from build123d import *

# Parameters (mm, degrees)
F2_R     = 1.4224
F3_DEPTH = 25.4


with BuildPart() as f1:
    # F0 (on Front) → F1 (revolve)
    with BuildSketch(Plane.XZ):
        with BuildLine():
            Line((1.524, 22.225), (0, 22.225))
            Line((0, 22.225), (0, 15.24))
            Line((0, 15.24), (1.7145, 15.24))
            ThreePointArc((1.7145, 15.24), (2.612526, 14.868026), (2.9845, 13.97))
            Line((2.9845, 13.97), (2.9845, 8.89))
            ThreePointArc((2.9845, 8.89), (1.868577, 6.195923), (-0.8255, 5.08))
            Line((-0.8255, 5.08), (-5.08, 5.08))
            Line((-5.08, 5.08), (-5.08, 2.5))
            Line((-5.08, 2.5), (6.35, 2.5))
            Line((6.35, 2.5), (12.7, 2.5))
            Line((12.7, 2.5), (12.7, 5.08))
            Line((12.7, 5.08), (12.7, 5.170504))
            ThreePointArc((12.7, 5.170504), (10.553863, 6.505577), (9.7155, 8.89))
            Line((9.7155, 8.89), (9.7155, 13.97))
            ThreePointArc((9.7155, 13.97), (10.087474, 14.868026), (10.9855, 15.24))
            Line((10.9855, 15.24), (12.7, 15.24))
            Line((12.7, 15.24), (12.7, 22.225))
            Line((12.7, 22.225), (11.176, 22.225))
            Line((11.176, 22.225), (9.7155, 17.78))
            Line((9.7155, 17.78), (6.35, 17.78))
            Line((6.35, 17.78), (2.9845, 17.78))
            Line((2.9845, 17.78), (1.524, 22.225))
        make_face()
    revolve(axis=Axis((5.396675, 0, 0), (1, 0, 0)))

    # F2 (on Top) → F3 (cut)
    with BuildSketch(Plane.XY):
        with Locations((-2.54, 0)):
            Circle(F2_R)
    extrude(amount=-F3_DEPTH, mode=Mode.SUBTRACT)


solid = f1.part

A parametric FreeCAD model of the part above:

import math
import FreeCAD as App
import Part
import Sketcher

V = App.Vector
Q = App.Units.Quantity

doc = App.newDocument("Part")
body = doc.addObject("PartDesign::Body", "Body")

sketch1 = doc.addObject("Sketcher::SketchObject", "Sketch")
body.addObject(sketch1)
sketch1.AttachmentSupport = (doc.XZ_Plane, [""])
sketch1.MapMode = "FlatFace"
sketch1.addGeometry([
    Part.LineSegment(V(1.524, 22.225, 0), V(0, 22.225, 0)),
    Part.LineSegment(V(0, 22.225, 0), V(0, 15.24, 0)),
    Part.LineSegment(V(0, 15.24, 0), V(1.7145, 15.24, 0)),
    Part.ArcOfCircle(Part.Circle(V(1.714501, 13.970001, 0), V(0, 0, 1), 1.269999), math.radians(-0.00006), math.radians(90.00006)),
    Part.LineSegment(V(2.9845, 13.97, 0), V(2.9845, 8.89, 0)),
    Part.ArcOfCircle(Part.Circle(V(-0.825499, 8.889999, 0), V(0, 0, 1), 3.809999), math.radians(-90.000008), math.radians(0.000008)),
    Part.LineSegment(V(-0.8255, 5.08, 0), V(-5.08, 5.08, 0)),
    Part.LineSegment(V(-5.08, 5.08, 0), V(-5.08, 2.5, 0)),
    Part.LineSegment(V(-5.08, 2.5, 0), V(12.7, 2.5, 0)),
    Part.LineSegment(V(12.7, 2.5, 0), V(12.7, 5.170504, 0)),
    Part.ArcOfCircle(Part.Circle(V(13.5255, 8.89, 0), V(0, 0, 1), 3.81), math.radians(-179.999996), math.radians(-102.513331)),
    Part.LineSegment(V(9.7155, 8.89, 0), V(9.7155, 13.97, 0)),
    Part.ArcOfCircle(Part.Circle(V(10.985499, 13.970001, 0), V(0, 0, 1), 1.269999), math.radians(89.99994), math.radians(180.00006)),
    Part.LineSegment(V(10.9855, 15.24, 0), V(12.7, 15.24, 0)),
    Part.LineSegment(V(12.7, 15.24, 0), V(12.7, 22.225, 0)),
    Part.LineSegment(V(12.7, 22.225, 0), V(11.176, 22.225, 0)),
    Part.LineSegment(V(11.176, 22.225, 0), V(9.7155, 17.78, 0)),
    Part.LineSegment(V(9.7155, 17.78, 0), V(2.9845, 17.78, 0)),
    Part.LineSegment(V(2.9845, 17.78, 0), V(1.524, 22.225, 0)),
], False)
sketch1.addConstraint([
    Sketcher.Constraint("Coincident", 0, 2, 1, 1),
    Sketcher.Constraint("Coincident", 1, 2, 2, 1),
    Sketcher.Constraint("Tangent", 2, 2, 3, 2),
    Sketcher.Constraint("Tangent", 3, 1, 4, 1),
    Sketcher.Constraint("Tangent", 4, 2, 5, 2),
    Sketcher.Constraint("Tangent", 5, 1, 6, 1),
    Sketcher.Constraint("Coincident", 6, 2, 7, 1),
    Sketcher.Constraint("Coincident", 7, 2, 8, 1),
    Sketcher.Constraint("Coincident", 8, 2, 9, 1),
    Sketcher.Constraint("Coincident", 9, 2, 10, 2),
    Sketcher.Constraint("Tangent", 10, 1, 11, 1),
    Sketcher.Constraint("Tangent", 11, 2, 12, 2),
    Sketcher.Constraint("Tangent", 12, 1, 13, 1),
    Sketcher.Constraint("Coincident", 13, 2, 14, 1),
    Sketcher.Constraint("Coincident", 14, 2, 15, 1),
    Sketcher.Constraint("Coincident", 15, 2, 16, 1),
    Sketcher.Constraint("Coincident", 16, 2, 17, 1),
    Sketcher.Constraint("Coincident", 17, 2, 18, 1),
    Sketcher.Constraint("Coincident", 18, 2, 0, 1),
    Sketcher.Constraint("Horizontal", 0),
    Sketcher.Constraint("Vertical", 1),
    Sketcher.Constraint("Horizontal", 2),
    Sketcher.Constraint("Vertical", 4),
    Sketcher.Constraint("Horizontal", 6),
    Sketcher.Constraint("Vertical", 7),
    Sketcher.Constraint("Horizontal", 8),
    Sketcher.Constraint("Vertical", 9),
    Sketcher.Constraint("Vertical", 11),
    Sketcher.Constraint("Horizontal", 13),
    Sketcher.Constraint("Vertical", 14),
    Sketcher.Constraint("Horizontal", 15),
    Sketcher.Constraint("Horizontal", 17),
    Sketcher.Constraint("Equal", 5, 10),
    Sketcher.Constraint("Equal", 3, 12),
    Sketcher.Constraint("PointOnObject", 0, 2, -2),
    Sketcher.Constraint("Horizontal", 5, 3, 10, 3),
    Sketcher.Constraint("Horizontal", 3, 3, 12, 3),
    Sketcher.Constraint("Horizontal", 0, 2, 14, 2),
    Sketcher.Constraint("Vertical", 9, 2, 13, 2),
    Sketcher.Constraint("Vertical", 11, 2, 16, 2),
    Sketcher.Constraint("Vertical", 4, 2, 17, 2),
    Sketcher.Constraint("Equal", 2, 13),
    Sketcher.Constraint("Equal", 0, 15),
    Sketcher.Constraint("Radius", 3, Q("0.0499999 in")),
    Sketcher.Constraint("Radius", 5, Q("0.15 in")),
    Sketcher.Constraint("DistanceX", 8, 1, 8, 2, Q("0.7 in")),
    Sketcher.Constraint("DistanceY", 4, 2, 4, 1, Q("0.2 in")),
    Sketcher.Constraint("DistanceX", 0, 2, 0, 1, Q("0.06 in")),
    Sketcher.Constraint("DistanceY", -1, 1, 1, 2, Q("0.6 in")),
    Sketcher.Constraint("DistanceX", 6, 2, -1, 1, Q("0.2 in")),
    Sketcher.Constraint("DistanceY", -1, 1, 16, 2, Q("0.7 in")),
    Sketcher.Constraint("DistanceX", 17, 2, 17, 1, Q("0.265 in")),
    Sketcher.Constraint("DistanceY", 1, 2, 1, 1, Q("0.275 in")),
    Sketcher.Constraint("DistanceY", 7, 2, 7, 1, 2.58),
])
revolution = doc.addObject("PartDesign::Revolution", "Revolution")
body.addObject(revolution)
revolution.Profile = sketch1
revolution.ReferenceAxis = (sketch1, ["H_Axis"])
revolution.Angle = 360

sketch2 = doc.addObject("Sketcher::SketchObject", "Sketch001")
body.addObject(sketch2)
sketch2.AttachmentSupport = (doc.XY_Plane, [""])
sketch2.MapMode = "FlatFace"
sketch2.addGeometry(Part.Circle(V(-2.54, 0, 0), V(0, 0, 1), 1.4224), False)
sketch2.addConstraint([
    Sketcher.Constraint("PointOnObject", 0, 3, -1),
    Sketcher.Constraint("Diameter", 0, Q("0.112 in")),
    Sketcher.Constraint("DistanceX", 0, 3, -1, 1, Q("0.1 in")),
])
pocket1 = doc.addObject("PartDesign::Pocket", "Pocket")
body.addObject(pocket1)
pocket1.Profile = sketch2
pocket1.Length = Q("1 in")

doc.recompute()
